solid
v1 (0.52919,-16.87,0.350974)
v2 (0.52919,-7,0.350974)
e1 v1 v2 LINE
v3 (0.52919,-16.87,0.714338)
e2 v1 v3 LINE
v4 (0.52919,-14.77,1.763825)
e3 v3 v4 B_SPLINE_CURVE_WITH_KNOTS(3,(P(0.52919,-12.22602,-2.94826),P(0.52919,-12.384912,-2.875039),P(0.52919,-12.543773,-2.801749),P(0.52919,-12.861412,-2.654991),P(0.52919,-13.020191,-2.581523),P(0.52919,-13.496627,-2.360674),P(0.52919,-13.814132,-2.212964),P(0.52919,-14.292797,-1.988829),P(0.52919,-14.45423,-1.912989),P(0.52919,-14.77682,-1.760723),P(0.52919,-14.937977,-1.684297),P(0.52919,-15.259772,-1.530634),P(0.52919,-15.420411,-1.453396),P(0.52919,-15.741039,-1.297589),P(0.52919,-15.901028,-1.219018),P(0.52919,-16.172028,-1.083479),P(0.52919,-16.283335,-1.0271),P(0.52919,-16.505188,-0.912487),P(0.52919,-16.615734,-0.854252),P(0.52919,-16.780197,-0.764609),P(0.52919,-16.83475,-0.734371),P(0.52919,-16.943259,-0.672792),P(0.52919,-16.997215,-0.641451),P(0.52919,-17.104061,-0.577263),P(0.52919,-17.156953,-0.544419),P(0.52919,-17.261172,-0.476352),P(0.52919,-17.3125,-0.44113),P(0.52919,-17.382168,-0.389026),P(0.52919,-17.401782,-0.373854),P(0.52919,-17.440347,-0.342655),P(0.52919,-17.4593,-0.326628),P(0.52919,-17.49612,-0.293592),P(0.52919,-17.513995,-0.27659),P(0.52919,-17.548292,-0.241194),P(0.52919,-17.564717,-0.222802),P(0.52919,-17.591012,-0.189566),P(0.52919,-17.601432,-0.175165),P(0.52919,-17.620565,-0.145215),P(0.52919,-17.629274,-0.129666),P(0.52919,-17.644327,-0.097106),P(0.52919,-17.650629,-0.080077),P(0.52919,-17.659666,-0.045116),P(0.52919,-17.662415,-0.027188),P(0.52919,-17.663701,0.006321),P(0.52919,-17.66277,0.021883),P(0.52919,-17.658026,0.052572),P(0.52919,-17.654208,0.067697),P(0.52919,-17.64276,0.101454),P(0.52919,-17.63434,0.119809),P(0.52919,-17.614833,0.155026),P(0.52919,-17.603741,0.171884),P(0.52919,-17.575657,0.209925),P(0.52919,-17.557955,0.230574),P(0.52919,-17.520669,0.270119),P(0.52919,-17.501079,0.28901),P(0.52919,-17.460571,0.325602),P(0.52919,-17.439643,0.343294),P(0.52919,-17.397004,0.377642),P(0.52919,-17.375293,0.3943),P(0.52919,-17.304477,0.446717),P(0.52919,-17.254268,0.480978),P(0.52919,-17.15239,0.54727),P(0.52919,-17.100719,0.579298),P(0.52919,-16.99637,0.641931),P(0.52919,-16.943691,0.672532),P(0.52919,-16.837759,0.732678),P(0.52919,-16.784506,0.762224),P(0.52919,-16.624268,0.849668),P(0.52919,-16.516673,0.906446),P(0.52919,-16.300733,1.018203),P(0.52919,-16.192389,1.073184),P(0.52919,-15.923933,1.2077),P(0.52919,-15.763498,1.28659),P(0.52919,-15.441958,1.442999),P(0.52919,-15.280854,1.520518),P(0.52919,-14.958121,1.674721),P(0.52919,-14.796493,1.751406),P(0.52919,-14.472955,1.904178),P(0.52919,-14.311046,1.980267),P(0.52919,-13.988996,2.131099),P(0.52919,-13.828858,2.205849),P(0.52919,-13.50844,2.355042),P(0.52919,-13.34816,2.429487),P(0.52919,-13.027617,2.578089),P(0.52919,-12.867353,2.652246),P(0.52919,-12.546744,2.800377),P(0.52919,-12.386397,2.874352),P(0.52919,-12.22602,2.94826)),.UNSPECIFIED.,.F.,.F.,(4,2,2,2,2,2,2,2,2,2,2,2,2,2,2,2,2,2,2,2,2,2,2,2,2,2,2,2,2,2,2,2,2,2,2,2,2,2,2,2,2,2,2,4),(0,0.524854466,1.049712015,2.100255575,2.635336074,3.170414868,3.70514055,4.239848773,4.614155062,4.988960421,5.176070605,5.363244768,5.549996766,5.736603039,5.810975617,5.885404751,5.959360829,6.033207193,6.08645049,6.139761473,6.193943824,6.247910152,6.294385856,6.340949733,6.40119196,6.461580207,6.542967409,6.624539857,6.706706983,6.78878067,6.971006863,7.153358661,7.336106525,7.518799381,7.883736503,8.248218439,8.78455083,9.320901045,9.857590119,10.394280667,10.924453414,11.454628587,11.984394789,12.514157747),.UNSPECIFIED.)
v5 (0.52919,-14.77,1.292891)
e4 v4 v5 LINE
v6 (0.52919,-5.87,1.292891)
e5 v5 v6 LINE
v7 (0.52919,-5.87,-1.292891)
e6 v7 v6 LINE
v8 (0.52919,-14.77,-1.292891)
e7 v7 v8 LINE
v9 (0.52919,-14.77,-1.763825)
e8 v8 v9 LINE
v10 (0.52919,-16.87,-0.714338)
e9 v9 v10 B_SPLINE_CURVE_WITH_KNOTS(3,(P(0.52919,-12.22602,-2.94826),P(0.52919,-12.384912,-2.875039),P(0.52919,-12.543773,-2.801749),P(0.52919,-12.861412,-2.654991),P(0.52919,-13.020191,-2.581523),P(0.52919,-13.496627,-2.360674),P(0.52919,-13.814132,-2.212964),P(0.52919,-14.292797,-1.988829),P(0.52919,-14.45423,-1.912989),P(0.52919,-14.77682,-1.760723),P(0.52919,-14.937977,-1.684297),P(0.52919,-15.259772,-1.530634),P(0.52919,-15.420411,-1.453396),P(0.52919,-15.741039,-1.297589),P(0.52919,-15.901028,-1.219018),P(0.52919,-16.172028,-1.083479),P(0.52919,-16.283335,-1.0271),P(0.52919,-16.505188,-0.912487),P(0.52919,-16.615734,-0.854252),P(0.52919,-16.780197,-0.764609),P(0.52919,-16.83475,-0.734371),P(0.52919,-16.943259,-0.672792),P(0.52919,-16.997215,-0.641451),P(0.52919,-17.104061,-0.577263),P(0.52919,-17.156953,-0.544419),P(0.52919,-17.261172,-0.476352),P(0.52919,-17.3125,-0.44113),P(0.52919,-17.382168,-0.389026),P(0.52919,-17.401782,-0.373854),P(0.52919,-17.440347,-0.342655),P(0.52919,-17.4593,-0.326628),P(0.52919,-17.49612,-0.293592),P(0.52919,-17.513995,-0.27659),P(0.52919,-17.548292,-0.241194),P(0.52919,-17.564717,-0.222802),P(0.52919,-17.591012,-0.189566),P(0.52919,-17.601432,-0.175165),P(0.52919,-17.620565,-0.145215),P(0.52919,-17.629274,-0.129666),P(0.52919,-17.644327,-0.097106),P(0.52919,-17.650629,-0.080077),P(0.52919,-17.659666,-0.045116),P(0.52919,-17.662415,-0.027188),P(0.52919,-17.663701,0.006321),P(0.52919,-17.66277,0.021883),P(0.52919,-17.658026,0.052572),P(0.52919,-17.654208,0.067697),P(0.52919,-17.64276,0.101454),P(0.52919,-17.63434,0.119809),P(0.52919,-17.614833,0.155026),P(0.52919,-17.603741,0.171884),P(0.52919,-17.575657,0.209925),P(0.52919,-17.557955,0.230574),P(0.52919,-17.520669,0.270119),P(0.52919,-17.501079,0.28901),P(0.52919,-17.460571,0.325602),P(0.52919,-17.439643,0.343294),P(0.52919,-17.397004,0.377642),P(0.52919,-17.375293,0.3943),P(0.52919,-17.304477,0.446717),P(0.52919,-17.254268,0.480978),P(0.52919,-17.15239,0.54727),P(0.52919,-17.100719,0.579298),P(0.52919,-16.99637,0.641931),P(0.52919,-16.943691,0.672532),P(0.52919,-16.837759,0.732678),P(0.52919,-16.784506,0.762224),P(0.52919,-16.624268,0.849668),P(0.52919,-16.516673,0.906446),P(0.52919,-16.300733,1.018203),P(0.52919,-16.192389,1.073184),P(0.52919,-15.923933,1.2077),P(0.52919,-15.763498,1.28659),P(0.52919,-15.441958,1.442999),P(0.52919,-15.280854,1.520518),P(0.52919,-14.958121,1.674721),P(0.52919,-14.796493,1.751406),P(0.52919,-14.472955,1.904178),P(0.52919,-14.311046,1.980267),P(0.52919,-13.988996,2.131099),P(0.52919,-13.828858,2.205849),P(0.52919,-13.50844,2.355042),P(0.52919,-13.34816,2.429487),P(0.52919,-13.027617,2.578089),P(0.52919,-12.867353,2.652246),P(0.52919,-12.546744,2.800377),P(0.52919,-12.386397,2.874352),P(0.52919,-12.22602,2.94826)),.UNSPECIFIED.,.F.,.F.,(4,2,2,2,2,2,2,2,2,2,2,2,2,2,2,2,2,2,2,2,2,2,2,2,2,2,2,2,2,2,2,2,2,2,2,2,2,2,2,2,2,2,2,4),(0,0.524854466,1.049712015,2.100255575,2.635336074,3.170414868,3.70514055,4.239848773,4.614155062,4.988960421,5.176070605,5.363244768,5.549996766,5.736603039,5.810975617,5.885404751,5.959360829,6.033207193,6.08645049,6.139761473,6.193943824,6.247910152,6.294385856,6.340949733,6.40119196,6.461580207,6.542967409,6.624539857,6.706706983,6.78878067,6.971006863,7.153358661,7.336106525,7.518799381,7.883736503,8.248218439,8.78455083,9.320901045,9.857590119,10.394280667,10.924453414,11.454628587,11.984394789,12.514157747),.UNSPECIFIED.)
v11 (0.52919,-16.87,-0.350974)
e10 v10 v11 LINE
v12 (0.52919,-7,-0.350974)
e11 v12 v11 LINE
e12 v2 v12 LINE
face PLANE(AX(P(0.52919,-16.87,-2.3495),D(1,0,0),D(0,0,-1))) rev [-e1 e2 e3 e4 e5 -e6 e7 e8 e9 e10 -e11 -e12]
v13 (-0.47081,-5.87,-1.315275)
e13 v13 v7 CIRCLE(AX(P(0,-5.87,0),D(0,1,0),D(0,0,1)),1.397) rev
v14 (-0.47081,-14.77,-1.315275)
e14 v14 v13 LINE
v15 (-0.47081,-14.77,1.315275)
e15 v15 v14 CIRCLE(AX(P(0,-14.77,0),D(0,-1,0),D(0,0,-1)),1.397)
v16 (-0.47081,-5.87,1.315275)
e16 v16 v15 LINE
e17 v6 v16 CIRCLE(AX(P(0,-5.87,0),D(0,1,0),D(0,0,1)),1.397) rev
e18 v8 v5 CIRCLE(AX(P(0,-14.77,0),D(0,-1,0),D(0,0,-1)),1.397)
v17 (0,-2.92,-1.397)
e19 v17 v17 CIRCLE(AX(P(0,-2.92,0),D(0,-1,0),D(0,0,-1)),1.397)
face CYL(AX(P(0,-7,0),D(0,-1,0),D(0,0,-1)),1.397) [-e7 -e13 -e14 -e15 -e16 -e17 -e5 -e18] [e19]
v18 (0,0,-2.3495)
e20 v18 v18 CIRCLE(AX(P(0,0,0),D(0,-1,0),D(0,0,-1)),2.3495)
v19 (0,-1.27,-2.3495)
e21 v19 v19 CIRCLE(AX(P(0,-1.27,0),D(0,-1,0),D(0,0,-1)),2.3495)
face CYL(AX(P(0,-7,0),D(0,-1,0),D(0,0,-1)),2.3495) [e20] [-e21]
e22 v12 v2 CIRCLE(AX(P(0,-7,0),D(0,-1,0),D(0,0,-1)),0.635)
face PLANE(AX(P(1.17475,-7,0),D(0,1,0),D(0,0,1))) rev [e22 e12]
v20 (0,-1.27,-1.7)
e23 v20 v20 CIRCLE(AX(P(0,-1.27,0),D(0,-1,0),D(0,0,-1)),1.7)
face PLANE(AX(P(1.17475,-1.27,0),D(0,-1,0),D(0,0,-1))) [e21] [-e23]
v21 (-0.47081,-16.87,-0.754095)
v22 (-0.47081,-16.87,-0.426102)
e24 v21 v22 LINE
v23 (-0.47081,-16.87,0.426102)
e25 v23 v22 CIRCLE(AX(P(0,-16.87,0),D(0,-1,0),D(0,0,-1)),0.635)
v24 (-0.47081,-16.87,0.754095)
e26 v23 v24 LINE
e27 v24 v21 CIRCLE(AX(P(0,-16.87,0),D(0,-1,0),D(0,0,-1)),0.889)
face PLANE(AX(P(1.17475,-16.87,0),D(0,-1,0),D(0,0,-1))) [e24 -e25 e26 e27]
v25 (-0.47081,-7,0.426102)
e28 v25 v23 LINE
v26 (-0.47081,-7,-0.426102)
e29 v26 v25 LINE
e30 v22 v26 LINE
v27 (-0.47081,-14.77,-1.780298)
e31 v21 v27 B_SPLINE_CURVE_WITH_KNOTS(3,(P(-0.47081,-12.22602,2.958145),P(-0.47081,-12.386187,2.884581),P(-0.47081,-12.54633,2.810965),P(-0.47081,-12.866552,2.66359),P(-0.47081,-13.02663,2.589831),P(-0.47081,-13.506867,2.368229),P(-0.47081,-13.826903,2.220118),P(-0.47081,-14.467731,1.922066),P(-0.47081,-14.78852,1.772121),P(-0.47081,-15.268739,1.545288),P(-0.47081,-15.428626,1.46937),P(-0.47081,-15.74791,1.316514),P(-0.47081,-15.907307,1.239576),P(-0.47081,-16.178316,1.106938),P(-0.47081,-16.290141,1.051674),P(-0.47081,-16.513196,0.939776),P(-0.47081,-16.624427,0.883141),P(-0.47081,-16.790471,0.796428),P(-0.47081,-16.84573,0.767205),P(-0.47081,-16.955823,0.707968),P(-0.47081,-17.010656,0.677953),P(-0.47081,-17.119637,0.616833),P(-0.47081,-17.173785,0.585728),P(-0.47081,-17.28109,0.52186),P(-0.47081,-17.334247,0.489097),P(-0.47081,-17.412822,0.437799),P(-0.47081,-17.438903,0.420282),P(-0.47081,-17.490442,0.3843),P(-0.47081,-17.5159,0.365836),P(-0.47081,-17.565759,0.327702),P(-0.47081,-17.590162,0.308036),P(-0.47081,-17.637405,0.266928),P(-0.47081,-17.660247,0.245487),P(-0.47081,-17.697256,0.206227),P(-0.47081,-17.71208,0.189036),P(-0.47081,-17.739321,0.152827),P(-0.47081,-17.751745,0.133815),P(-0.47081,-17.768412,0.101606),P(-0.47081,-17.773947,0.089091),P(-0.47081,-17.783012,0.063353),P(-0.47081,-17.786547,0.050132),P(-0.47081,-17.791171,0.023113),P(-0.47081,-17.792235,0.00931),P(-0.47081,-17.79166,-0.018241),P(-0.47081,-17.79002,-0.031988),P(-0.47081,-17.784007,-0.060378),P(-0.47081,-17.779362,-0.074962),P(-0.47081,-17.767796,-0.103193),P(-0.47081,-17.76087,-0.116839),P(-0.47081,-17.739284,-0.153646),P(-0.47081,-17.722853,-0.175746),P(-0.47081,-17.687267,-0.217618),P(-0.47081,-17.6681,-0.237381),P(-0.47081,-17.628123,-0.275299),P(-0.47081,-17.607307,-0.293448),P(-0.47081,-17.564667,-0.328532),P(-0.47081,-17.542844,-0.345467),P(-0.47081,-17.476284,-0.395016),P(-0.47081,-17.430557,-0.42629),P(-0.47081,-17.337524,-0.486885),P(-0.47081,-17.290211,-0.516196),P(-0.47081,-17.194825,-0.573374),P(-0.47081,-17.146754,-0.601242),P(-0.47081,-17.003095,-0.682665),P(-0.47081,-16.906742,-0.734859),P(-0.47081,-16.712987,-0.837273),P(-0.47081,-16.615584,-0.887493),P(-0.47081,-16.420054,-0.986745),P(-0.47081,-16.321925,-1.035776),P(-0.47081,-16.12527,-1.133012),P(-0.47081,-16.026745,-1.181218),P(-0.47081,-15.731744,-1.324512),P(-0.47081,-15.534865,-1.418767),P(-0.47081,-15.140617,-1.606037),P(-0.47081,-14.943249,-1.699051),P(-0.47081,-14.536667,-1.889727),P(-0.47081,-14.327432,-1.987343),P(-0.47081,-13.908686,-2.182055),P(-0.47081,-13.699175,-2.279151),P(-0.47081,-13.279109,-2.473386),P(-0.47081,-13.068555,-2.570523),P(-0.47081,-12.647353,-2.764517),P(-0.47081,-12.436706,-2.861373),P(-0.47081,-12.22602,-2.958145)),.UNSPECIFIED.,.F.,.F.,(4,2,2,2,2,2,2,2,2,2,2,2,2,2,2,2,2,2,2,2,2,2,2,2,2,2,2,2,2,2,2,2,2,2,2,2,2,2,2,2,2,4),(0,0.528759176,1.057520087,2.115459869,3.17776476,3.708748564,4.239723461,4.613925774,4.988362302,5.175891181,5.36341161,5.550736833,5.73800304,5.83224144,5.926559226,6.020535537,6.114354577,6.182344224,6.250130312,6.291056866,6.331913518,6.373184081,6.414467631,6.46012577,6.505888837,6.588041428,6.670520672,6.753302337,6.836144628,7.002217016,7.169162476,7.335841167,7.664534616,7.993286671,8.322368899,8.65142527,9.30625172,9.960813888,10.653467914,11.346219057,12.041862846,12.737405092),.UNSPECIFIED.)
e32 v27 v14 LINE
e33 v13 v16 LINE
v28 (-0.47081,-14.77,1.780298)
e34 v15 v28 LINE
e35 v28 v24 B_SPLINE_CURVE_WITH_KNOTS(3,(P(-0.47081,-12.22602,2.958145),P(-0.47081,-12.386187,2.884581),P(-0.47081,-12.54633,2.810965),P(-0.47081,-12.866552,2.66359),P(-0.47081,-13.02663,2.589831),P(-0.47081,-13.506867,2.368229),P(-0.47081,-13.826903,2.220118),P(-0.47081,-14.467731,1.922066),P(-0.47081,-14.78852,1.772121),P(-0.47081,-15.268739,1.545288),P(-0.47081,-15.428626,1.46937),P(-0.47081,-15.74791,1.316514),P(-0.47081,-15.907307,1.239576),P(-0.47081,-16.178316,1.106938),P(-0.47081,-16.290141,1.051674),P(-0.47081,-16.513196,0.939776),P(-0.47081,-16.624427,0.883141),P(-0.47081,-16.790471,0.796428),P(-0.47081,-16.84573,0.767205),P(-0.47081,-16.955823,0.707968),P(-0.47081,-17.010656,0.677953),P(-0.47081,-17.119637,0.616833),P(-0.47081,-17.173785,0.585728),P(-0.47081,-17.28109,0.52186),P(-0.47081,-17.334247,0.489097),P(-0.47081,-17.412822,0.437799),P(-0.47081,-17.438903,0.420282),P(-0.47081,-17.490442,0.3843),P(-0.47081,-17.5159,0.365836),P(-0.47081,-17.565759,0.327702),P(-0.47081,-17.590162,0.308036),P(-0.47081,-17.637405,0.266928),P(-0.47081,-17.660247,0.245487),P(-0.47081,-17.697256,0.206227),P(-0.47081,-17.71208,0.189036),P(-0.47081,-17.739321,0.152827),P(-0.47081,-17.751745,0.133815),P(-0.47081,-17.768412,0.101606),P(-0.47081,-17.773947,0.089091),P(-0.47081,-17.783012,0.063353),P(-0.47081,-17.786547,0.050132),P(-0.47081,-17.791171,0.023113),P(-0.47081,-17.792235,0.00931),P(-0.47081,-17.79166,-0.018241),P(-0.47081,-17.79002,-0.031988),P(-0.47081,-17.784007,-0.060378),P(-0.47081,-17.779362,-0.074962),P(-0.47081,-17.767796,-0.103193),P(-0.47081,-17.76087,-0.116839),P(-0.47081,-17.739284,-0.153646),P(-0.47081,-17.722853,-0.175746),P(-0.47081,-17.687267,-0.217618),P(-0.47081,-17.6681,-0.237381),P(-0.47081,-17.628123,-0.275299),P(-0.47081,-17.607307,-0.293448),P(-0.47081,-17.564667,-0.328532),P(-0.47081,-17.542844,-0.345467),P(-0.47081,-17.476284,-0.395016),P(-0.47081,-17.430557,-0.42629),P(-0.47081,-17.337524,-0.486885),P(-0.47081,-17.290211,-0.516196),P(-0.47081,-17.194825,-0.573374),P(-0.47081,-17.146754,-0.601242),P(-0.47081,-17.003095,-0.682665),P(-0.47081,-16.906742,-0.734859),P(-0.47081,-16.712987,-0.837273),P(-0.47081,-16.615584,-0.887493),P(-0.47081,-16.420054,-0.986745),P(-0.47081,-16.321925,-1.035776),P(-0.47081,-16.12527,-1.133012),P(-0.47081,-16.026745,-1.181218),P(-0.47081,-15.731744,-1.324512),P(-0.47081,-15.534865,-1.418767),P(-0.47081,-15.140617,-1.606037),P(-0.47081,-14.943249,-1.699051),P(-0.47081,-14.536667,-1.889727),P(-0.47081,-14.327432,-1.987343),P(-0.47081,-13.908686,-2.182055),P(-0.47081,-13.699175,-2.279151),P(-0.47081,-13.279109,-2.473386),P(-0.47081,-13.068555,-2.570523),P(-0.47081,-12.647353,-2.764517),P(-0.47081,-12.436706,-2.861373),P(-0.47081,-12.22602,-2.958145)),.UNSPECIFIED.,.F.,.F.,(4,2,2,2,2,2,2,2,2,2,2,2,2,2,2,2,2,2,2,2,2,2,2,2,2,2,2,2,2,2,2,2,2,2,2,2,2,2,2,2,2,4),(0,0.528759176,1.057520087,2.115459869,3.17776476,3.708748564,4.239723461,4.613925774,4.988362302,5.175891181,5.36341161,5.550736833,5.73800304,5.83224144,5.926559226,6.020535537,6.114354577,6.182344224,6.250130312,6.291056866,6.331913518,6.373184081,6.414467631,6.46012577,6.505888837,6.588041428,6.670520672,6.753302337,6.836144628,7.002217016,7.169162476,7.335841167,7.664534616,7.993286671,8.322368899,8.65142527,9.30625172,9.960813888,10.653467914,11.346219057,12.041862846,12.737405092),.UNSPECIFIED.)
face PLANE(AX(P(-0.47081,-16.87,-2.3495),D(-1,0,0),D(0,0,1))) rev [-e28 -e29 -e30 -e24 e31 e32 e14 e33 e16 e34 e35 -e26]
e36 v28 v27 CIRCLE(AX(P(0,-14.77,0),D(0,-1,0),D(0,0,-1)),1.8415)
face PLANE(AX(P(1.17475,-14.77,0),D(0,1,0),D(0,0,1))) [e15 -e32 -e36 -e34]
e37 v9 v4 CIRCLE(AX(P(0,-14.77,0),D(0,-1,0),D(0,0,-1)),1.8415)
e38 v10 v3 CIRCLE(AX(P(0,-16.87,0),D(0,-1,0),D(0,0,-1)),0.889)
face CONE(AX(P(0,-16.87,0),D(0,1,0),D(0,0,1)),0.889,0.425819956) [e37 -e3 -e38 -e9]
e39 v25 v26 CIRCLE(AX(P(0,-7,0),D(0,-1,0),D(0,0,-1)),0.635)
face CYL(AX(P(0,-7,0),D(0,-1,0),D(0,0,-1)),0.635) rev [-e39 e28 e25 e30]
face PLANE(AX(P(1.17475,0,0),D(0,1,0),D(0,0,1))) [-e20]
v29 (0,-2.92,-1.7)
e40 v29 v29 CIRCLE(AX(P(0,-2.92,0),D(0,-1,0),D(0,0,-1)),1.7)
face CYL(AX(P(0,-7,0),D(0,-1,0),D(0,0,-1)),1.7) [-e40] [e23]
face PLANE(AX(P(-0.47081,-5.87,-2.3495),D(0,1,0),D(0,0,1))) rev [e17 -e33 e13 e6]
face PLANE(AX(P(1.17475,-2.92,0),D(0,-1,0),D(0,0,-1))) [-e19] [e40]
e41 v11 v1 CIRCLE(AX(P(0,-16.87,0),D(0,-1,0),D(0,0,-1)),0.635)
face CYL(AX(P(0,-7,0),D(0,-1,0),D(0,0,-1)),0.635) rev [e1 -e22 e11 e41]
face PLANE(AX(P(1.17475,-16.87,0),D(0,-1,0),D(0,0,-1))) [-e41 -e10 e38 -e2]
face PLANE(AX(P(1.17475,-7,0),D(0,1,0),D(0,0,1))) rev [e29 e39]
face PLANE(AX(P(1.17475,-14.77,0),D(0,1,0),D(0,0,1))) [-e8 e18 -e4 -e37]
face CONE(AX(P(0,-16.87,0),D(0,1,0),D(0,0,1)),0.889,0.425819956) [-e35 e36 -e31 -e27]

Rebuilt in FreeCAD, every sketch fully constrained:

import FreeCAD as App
import Part
import Sketcher
Q = App.Units.Quantity

doc = App.newDocument("Part")
body = doc.addObject("PartDesign::Body", "Body")

# Sketch on XY plane
sketch1 = body.newObject("Sketcher::SketchObject", "Sketch")
sketch1.AttachmentSupport = (doc.getObject("XY_Plane"), [""])
sketch1.MapMode = "FlatFace"
sketch1.addGeometry([
    Part.LineSegment(App.Vector(0, 0, 0), App.Vector(0, -7, 0)),  # 0
    Part.LineSegment(App.Vector(0, -7, 0), App.Vector(0.64, -7, 0)),  # 1
    Part.LineSegment(App.Vector(0.64, -7, 0), App.Vector(0.64, -16.87, 0)),  # 2
    Part.LineSegment(App.Vector(0.64, -16.87, 0), App.Vector(0.89, -16.87, 0)),  # 3
    Part.LineSegment(App.Vector(0.89, -16.87, 0), App.Vector(1.84, -14.77, 0)),  # 4
    Part.LineSegment(App.Vector(1.84, -14.77, 0), App.Vector(1.4, -14.77, 0)),  # 5
    Part.LineSegment(App.Vector(1.4, -14.77, 0), App.Vector(1.4, -2.92, 0)),  # 6
    Part.LineSegment(App.Vector(1.4, -2.92, 0), App.Vector(1.7, -2.92, 0)),  # 7
    Part.LineSegment(App.Vector(1.7, -2.92, 0), App.Vector(1.7, -1.27, 0)),  # 8
    Part.LineSegment(App.Vector(1.7, -1.27, 0), App.Vector(2.35, -1.27, 0)),  # 9
    Part.LineSegment(App.Vector(2.35, -1.27, 0), App.Vector(2.35, 0, 0)),  # 10
    Part.LineSegment(App.Vector(2.35, 0, 0), App.Vector(0, 0, 0)),  # 11
], False)
sketch1.addConstraint([
    Sketcher.Constraint("Coincident", 0, 2, 1, 1),
    Sketcher.Constraint("Coincident", 1, 2, 2, 1),
    Sketcher.Constraint("Coincident", 2, 2, 3, 1),
    Sketcher.Constraint("Coincident", 3, 2, 4, 1),
    Sketcher.Constraint("Coincident", 4, 2, 5, 1),
    Sketcher.Constraint("Coincident", 5, 2, 6, 1),
    Sketcher.Constraint("Coincident", 6, 2, 7, 1),
    Sketcher.Constraint("Coincident", 7, 2, 8, 1),
    Sketcher.Constraint("Coincident", 8, 2, 9, 1),
    Sketcher.Constraint("Coincident", 9, 2, 10, 1),
    Sketcher.Constraint("Coincident", 10, 2, 11, 1),
    Sketcher.Constraint("Coincident", 11, 2, 0, 1),
    Sketcher.Constraint("Vertical", 0),
    Sketcher.Constraint("Horizontal", 1),
    Sketcher.Constraint("Vertical", 2),
    Sketcher.Constraint("Horizontal", 3),
    Sketcher.Constraint("Horizontal", 5),
    Sketcher.Constraint("Vertical", 6),
    Sketcher.Constraint("Horizontal", 7),
    Sketcher.Constraint("Vertical", 8),
    Sketcher.Constraint("Horizontal", 9),
    Sketcher.Constraint("Vertical", 10),
    Sketcher.Constraint("Horizontal", 11),
    Sketcher.Constraint("Coincident", 11, 2, -1, 1),
    Sketcher.Constraint("DistanceY", 0, 2, 0, 1, Q("7 mm")),
    Sketcher.Constraint("DistanceY", 2, 2, 2, 1, Q("9.87 mm")),
    Sketcher.Constraint("DistanceY", 6, 1, 6, 2, Q("11.85 mm")),
    Sketcher.Constraint("DistanceY", 8, 1, 8, 2, Q("1.65 mm")),
    Sketcher.Constraint("DistanceY", 10, 1, 10, 2, Q("1.27 mm")),
    Sketcher.Constraint("DistanceX", -1, 1, 7, 2, Q("1.7 mm")),
    Sketcher.Constraint("DistanceX", 1, 1, 1, 2, Q("0.635 mm")),
    Sketcher.Constraint("DistanceX", 3, 1, 3, 2, Q("0.254 mm")),
    Sketcher.Constraint("DistanceX", 7, 1, 7, 2, Q("0.303 mm")),
    Sketcher.Constraint("DistanceX", 5, 2, 5, 1, Q("0.4445 mm")),
    Sketcher.Constraint("DistanceX", 9, 1, 9, 2, Q("0.6495 mm")),
])
revolution = body.newObject("PartDesign::Revolution", "Revolution")
revolution.Profile = sketch1
revolution.ReferenceAxis = (sketch1, ["V_Axis"])
revolution.Angle = 360

# Sketch on XY plane
sketch2 = body.newObject("Sketcher::SketchObject", "Sketch001")
sketch2.AttachmentSupport = (doc.getObject("XY_Plane"), [""])
sketch2.MapMode = "FlatFace"
sketch2.addGeometry([
    Part.LineSegment(App.Vector(-0.5, -5.9, 0), App.Vector(-0.5, -16.9, 0)),
    Part.LineSegment(App.Vector(-0.5, -16.9, 0), App.Vector(0.5, -16.9, 0)),
    Part.LineSegment(App.Vector(0.5, -16.9, 0), App.Vector(0.5, -5.9, 0)),
    Part.LineSegment(App.Vector(0.5, -5.9, 0), App.Vector(-0.5, -5.9, 0)),
], False)
sketch2.addConstraint([
    Sketcher.Constraint("Coincident", 0, 2, 1, 1),
    Sketcher.Constraint("Coincident", 1, 2, 2, 1),
    Sketcher.Constraint("Coincident", 2, 2, 3, 1),
    Sketcher.Constraint("Coincident", 3, 2, 0, 1),
    Sketcher.Constraint("Vertical", 0),
    Sketcher.Constraint("Horizontal", 1),
    Sketcher.Constraint("Vertical", 2),
    Sketcher.Constraint("Horizontal", 3),
    Sketcher.Constraint("DistanceX", 1, 1, 1, 2, Q("1 mm")),
    Sketcher.Constraint("DistanceY", 0, 2, 0, 1, Q("11 mm")),
    Sketcher.Constraint("DistanceY", 0, 2, -1, 1, Q("16.87 mm")),
    Sketcher.Constraint("DistanceX", 0, 2, -1, 1, Q("0.47081 mm")),
])
pocket1 = body.newObject("PartDesign::Pocket", "Pocket")
pocket1.Profile = sketch2
pocket1.Type = "ThroughAll"
pocket1.Midplane = True

doc.recompute()
